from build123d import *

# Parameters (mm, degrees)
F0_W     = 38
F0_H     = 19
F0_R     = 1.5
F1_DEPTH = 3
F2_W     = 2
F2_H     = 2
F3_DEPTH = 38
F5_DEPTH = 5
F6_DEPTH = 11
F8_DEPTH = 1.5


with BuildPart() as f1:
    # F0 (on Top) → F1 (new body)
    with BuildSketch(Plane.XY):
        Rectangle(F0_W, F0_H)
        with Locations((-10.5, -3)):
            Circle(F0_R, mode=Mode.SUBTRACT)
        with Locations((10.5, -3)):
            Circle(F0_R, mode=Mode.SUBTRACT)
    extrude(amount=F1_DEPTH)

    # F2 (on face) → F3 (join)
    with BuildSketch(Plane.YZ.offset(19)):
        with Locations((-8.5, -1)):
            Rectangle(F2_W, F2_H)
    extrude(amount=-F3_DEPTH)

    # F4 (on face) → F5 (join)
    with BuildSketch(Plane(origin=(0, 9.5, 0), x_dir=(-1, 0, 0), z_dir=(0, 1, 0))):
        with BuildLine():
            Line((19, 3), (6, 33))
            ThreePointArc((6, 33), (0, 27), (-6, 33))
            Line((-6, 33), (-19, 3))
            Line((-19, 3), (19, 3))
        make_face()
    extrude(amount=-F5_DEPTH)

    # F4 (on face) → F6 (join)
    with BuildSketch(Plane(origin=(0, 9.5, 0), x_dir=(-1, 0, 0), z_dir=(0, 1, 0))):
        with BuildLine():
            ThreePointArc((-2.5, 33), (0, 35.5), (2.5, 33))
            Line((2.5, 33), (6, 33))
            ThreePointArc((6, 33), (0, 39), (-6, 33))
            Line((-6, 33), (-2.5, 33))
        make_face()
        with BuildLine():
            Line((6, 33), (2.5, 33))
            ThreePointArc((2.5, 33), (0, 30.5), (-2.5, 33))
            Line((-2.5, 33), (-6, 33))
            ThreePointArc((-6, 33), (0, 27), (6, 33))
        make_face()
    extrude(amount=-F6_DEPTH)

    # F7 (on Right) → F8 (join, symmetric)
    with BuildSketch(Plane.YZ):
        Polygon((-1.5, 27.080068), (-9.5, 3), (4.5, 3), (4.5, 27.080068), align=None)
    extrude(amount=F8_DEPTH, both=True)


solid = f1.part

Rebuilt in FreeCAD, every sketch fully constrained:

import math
import FreeCAD as App
import Part
import Sketcher

doc = App.newDocument("Part")
body = doc.addObject("PartDesign::Body", "Body")

sketch1 = body.newObject("Sketcher::SketchObject", "Sketch")
sketch1.AttachmentSupport = (doc.getObject("XY_Plane"), [""])
sketch1.MapMode = "FlatFace"
sketch1.addGeometry([
    Part.LineSegment(App.Vector(-19, 9.5, 0), App.Vector(-19, -9.5, 0)),
    Part.LineSegment(App.Vector(-19, -9.5, 0), App.Vector(19, -9.5, 0)),
    Part.LineSegment(App.Vector(19, -9.5, 0), App.Vector(19, 9.5, 0)),
    Part.LineSegment(App.Vector(19, 9.5, 0), App.Vector(-19, 9.5, 0)),
    Part.Circle(App.Vector(-10.5, -3, 0), App.Vector(0, 0, 1), 1.5),
    Part.Circle(App.Vector(10.5, -3, 0), App.Vector(0, 0, 1), 1.5),
], False)
sketch1.addConstraint([
    Sketcher.Constraint("Coincident", 0, 2, 1, 1),
    Sketcher.Constraint("Coincident", 1, 2, 2, 1),
    Sketcher.Constraint("Coincident", 2, 2, 3, 1),
    Sketcher.Constraint("Coincident", 3, 2, 0, 1),
    Sketcher.Constraint("Vertical", 0),
    Sketcher.Constraint("Horizontal", 1),
    Sketcher.Constraint("Vertical", 2),
    Sketcher.Constraint("Horizontal", 3),
    Sketcher.Constraint("Equal", 4, 5),
    Sketcher.Constraint("Symmetric", 0, 2, 2, 2, -1, 1),
    Sketcher.Constraint("Symmetric", 4, 3, 5, 3, -2),
    Sketcher.Constraint("Diameter", 4, 3.0),
    Sketcher.Constraint("DistanceX", 1, 1, 1, 2, 38.0),
    Sketcher.Constraint("DistanceY", 0, 2, 0, 1, 19.0),
    Sketcher.Constraint("DistanceY", 4, 3, -1, 1, 3.0),
    Sketcher.Constraint("DistanceX", 4, 3, 5, 3, 21.0),
])
pad1 = body.newObject("PartDesign::Pad", "Pad")
pad1.Profile = sketch1
pad1.Length = 3

sketch2 = body.newObject("Sketcher::SketchObject", "Sketch001")
sketch2.AttachmentSupport = (doc.getObject("YZ_Plane"), [""])
sketch2.MapMode = "FlatFace"
sketch2.AttachmentOffset = App.Placement(App.Vector(0, 0, 19), App.Rotation())
sketch2.addGeometry([
    Part.LineSegment(App.Vector(-9.5, 0, 0), App.Vector(-9.5, -2, 0)),
    Part.LineSegment(App.Vector(-9.5, -2, 0), App.Vector(-7.5, -2, 0)),
    Part.LineSegment(App.Vector(-7.5, -2, 0), App.Vector(-7.5, 0, 0)),
    Part.LineSegment(App.Vector(-7.5, 0, 0), App.Vector(-9.5, 0, 0)),
], False)
sketch2.addConstraint([
    Sketcher.Constraint("Coincident", 0, 2, 1, 1),
    Sketcher.Constraint("Coincident", 1, 2, 2, 1),
    Sketcher.Constraint("Coincident", 2, 2, 3, 1),
    Sketcher.Constraint("Coincident", 3, 2, 0, 1),
    Sketcher.Constraint("Vertical", 0),
    Sketcher.Constraint("Horizontal", 1),
    Sketcher.Constraint("Vertical", 2),
    Sketcher.Constraint("Horizontal", 3),
    Sketcher.Constraint("PointOnObject", 2, 2, -1),
    Sketcher.Constraint("Equal", 3, 0),
    Sketcher.Constraint("DistanceX", 1, 1, 1, 2, 2.0),
    Sketcher.Constraint("DistanceX", 0, 2, -1, 1, 9.5),
])
pad2 = body.newObject("PartDesign::Pad", "Pad001")
pad2.Profile = sketch2
pad2.Length = 38
pad2.Reversed = True

sketch3 = body.newObject("Sketcher::SketchObject", "Sketch002")
sketch3.AttachmentSupport = (doc.getObject("XZ_Plane"), [""])
sketch3.MapMode = "FlatFace"
sketch3.AttachmentOffset = App.Placement(App.Vector(0, 0, -9.5), App.Rotation())
sketch3.addGeometry([
    Part.LineSegment(App.Vector(-19, 3, 0), App.Vector(-6, 33, 0)),
    Part.ArcOfCircle(Part.Circle(App.Vector(0, 33, 0), App.Vector(0, 0, 1), 6), math.radians(180), math.radians(360)),
    Part.LineSegment(App.Vector(6, 33, 0), App.Vector(19, 3, 0)),
    Part.LineSegment(App.Vector(19, 3, 0), App.Vector(-19, 3, 0)),
], False)
sketch3.addConstraint([
    Sketcher.Constraint("Coincident", 0, 2, 1, 1),
    Sketcher.Constraint("Coincident", 1, 2, 2, 1),
    Sketcher.Constraint("Coincident", 2, 2, 3, 1),
    Sketcher.Constraint("Coincident", 3, 2, 0, 1),
    Sketcher.Constraint("Horizontal", 3),
    Sketcher.Constraint("Symmetric", 0, 2, 1, 2, -2),
    Sketcher.Constraint("Horizontal", 1, 3, 0, 2),
    Sketcher.Constraint("Equal", 0, 2),
    Sketcher.Constraint("Radius", 1, 6.0),
    Sketcher.Constraint("DistanceX", 3, 2, 3, 1, 38.0),
    Sketcher.Constraint("DistanceY", -1, 1, 1, 3, 33.0),
    Sketcher.Constraint("DistanceY", -1, 1, 2, 2, 3.0),
])
pad3 = body.newObject("PartDesign::Pad", "Pad002")
pad3.Profile = sketch3
pad3.Length = 5

sketch4 = body.newObject("Sketcher::SketchObject", "Sketch003")
sketch4.AttachmentSupport = (doc.getObject("XZ_Plane"), [""])
sketch4.MapMode = "FlatFace"
sketch4.AttachmentOffset = App.Placement(App.Vector(0, 0, -9.5), App.Rotation())
sketch4.addGeometry([
    Part.Circle(App.Vector(0, 33, 0), App.Vector(0, 0, 1), 6),
    Part.Circle(App.Vector(0, 33, 0), App.Vector(0, 0, 1), 2.5),
], False)
sketch4.addConstraint([
    Sketcher.Constraint("Coincident", 1, 3, 0, 3),
    Sketcher.Constraint("PointOnObject", 0, 3, -2),
    Sketcher.Constraint("Diameter", 0, 12.0),
    Sketcher.Constraint("Diameter", 1, 5.0),
    Sketcher.Constraint("DistanceY", -1, 1, 0, 3, 33.0),
])
pad4 = body.newObject("PartDesign::Pad", "Pad003")
pad4.Profile = sketch4
pad4.Length = 11

sketch5 = body.newObject("Sketcher::SketchObject", "Sketch004")
sketch5.AttachmentSupport = (doc.getObject("YZ_Plane"), [""])
sketch5.MapMode = "FlatFace"
sketch5.addGeometry([
    Part.LineSegment(App.Vector(-1.5, 27.080068, 0), App.Vector(-9.5, 3, 0)),
    Part.LineSegment(App.Vector(-9.5, 3, 0), App.Vector(4.5, 3, 0)),
    Part.LineSegment(App.Vector(4.5, 3, 0), App.Vector(4.5, 27.080068, 0)),
    Part.LineSegment(App.Vector(4.5, 27.080068, 0), App.Vector(-1.5, 27.080068, 0)),
], False)
sketch5.addConstraint([
    Sketcher.Constraint("Coincident", 0, 2, 1, 1),
    Sketcher.Constraint("Coincident", 1, 2, 2, 1),
    Sketcher.Constraint("Coincident", 2, 2, 3, 1),
    Sketcher.Constraint("Coincident", 3, 2, 0, 1),
    Sketcher.Constraint("Horizontal", 1),
    Sketcher.Constraint("Vertical", 2),
    Sketcher.Constraint("Horizontal", 3),
    Sketcher.Constraint("DistanceX", 1, 1, 1, 2, 14.0),
    Sketcher.Constraint("DistanceX", 3, 2, 3, 1, 6.0),
    Sketcher.Constraint("DistanceY", -1, 1, 0, 2, 3.0),
    Sketcher.Constraint("DistanceX", 0, 2, -1, 1, 9.5),
    Sketcher.Constraint("DistanceY", 2, 1, 2, 2, 24.080068),
])
pad5 = body.newObject("PartDesign::Pad", "Pad004")
pad5.Profile = sketch5
pad5.Length = 3
pad5.Midplane = True

doc.recompute()
